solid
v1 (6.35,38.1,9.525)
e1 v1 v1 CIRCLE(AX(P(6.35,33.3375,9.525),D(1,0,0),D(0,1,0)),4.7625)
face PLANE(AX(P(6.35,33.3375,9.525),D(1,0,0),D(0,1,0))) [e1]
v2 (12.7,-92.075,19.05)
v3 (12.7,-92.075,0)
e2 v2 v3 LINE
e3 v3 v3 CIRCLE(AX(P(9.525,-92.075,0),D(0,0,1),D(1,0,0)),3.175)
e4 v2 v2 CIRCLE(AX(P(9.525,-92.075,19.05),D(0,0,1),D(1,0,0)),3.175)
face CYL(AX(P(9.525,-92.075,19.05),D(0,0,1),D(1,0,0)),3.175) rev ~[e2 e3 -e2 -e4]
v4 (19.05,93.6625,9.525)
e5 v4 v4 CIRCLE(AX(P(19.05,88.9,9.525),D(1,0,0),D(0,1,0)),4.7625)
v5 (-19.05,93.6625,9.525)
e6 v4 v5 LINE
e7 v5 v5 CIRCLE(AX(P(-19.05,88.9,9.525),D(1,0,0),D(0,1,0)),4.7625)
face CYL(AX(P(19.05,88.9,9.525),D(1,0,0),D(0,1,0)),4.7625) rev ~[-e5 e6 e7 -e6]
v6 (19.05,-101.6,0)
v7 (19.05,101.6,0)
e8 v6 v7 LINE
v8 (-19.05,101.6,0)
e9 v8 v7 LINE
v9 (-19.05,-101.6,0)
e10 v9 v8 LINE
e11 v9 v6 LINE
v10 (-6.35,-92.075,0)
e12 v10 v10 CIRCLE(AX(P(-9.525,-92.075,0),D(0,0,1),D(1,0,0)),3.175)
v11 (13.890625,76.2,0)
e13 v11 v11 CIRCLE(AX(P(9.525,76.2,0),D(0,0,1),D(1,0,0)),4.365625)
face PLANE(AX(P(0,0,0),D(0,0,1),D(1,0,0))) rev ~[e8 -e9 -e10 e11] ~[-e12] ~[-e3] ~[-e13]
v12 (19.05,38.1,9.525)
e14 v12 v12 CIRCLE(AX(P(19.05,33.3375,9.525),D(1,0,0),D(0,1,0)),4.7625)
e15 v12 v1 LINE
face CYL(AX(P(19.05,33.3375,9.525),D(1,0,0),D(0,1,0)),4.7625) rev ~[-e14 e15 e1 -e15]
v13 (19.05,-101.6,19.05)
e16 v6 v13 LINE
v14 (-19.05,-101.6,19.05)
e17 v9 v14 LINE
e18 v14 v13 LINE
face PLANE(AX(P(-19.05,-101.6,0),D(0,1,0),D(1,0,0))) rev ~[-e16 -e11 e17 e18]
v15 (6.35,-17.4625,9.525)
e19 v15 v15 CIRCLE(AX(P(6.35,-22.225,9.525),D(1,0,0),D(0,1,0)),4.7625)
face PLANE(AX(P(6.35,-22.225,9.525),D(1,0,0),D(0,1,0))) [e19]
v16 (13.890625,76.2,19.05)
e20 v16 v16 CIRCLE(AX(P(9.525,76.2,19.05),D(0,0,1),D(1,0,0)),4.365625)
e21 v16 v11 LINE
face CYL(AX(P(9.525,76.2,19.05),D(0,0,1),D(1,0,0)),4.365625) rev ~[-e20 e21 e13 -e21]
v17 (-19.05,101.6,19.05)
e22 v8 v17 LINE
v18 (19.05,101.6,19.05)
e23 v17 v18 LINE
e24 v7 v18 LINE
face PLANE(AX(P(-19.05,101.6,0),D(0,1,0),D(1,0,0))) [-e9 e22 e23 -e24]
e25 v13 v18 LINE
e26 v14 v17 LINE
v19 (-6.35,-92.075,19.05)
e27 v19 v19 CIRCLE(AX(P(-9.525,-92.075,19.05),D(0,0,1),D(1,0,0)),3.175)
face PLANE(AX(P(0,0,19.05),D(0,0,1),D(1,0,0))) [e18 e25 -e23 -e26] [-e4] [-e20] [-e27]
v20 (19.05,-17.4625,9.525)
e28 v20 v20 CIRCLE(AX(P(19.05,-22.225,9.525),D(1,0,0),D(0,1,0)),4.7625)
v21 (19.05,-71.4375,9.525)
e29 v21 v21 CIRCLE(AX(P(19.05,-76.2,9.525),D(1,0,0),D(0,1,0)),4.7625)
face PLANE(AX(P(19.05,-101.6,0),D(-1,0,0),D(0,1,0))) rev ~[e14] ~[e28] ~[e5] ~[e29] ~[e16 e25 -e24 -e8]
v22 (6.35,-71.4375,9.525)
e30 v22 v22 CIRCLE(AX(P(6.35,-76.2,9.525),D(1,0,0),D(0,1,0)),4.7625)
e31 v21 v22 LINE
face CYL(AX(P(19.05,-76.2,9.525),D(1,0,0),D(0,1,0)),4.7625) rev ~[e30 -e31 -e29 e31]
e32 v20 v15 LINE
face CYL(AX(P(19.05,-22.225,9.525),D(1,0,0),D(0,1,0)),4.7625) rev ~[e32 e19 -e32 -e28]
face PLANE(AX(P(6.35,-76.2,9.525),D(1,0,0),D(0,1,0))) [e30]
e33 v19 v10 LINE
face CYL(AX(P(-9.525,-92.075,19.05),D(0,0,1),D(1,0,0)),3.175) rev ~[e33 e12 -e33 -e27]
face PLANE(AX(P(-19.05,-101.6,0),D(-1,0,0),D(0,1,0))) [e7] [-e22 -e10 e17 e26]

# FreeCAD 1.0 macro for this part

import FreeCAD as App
import Part
import Sketcher
from FreeCAD import Vector
Q = App.Units.Quantity


def add_polygon(sketch, points):
    """Adds a closed chain of lines whose ends are joined by coincident constraints."""
    first, n = sketch.GeometryCount, len(points)
    for a, b in zip(points, points[1:] + points[:1]):
        sketch.addGeometry(Part.LineSegment(App.Vector(*a, 0), App.Vector(*b, 0)), False)
    for i in range(n):
        sketch.addConstraint(Sketcher.Constraint("Coincident", first + i, 2, first + (i + 1) % n, 1))

doc = App.newDocument("Part")
body = doc.addObject("PartDesign::Body", "Body")

sketch1 = doc.addObject("Sketcher::SketchObject", "Sketch")
body.addObject(sketch1)
sketch1.AttachmentSupport = (doc.XY_Plane, [""])
sketch1.MapMode = "FlatFace"
add_polygon(sketch1, [(-19, 102), (-19, -102), (19, -102), (19, 102)])
sketch1.addConstraint([
    Sketcher.Constraint("Vertical", 0),
    Sketcher.Constraint("Horizontal", 1),
    Sketcher.Constraint("Vertical", 2),
    Sketcher.Constraint("Horizontal", 3),
    Sketcher.Constraint("Symmetric", 0, 2, 2, 2, -1, 1),
    Sketcher.Constraint("DistanceY", 0, 2, 0, 1, Q("8 in")),
    Sketcher.Constraint("DistanceX", 1, 1, 1, 2, Q("1.5 in")),
])
pad1 = doc.addObject("PartDesign::Pad", "Pad")
body.addObject(pad1)
pad1.Profile = sketch1
pad1.Length = Q("0.75 in")

sketch2 = doc.addObject("Sketcher::SketchObject", "Sketch001")
body.addObject(sketch2)
sketch2.AttachmentSupport = (doc.YZ_Plane, [""])
sketch2.MapMode = "FlatFace"
sketch2.AttachmentOffset = App.Placement(Vector(0, 0, 0.75 * 25.4), App.Rotation())
sketch2.addGeometry(Part.Circle(Vector(88.9, 9.5, 0), Vector(0, 0, 1), 4.8), False)
sketch2.addConstraint([
    Sketcher.Constraint("Diameter", 0, Q("0.375 in")),
    Sketcher.Constraint("DistanceX", -1, 1, 0, 3, Q("3.5 in")),
    Sketcher.Constraint("DistanceY", -1, 1, 0, 3, Q("0.375 in")),
])
pocket1 = doc.addObject("PartDesign::Pocket", "Pocket")
body.addObject(pocket1)
pocket1.Profile = sketch2
pocket1.Type = "ThroughAll"

sketch3 = doc.addObject("Sketcher::SketchObject", "Sketch002")
body.addObject(sketch3)
sketch3.AttachmentSupport = (doc.XY_Plane, [""])
sketch3.MapMode = "FlatFace"
sketch3.AttachmentOffset = App.Placement(Vector(0, 0, 0.75 * 25.4), App.Rotation())
sketch3.addGeometry([
    Part.Circle(Vector(-9.5, -92.1, 0), Vector(0, 0, 1), 3.2),
    Part.Circle(Vector(9.5, -92.1, 0), Vector(0, 0, 1), 3.2),
], False)
sketch3.addConstraint([
    Sketcher.Constraint("Equal", 0, 1),
    Sketcher.Constraint("Symmetric", 0, 3, 1, 3, -2),
    Sketcher.Constraint("Diameter", 0, Q("0.25 in")),
    Sketcher.Constraint("DistanceX", 0, 3, 1, 3, Q("0.75 in")),
    Sketcher.Constraint("DistanceY", 0, 3, -1, 1, Q("3.625 in")),
])
pocket2 = doc.addObject("PartDesign::Pocket", "Pocket001")
body.addObject(pocket2)
pocket2.Profile = sketch3
pocket2.Type = "ThroughAll"

sketch4 = doc.addObject("Sketcher::SketchObject", "Sketch003")
body.addObject(sketch4)
sketch4.AttachmentSupport = (doc.XY_Plane, [""])
sketch4.MapMode = "FlatFace"
sketch4.AttachmentOffset = App.Placement(Vector(0, 0, 0.75 * 25.4), App.Rotation())
sketch4.addGeometry(Part.Circle(Vector(9.5, 76.2, 0), Vector(0, 0, 1), 4.4), False)
sketch4.addConstraint([
    Sketcher.Constraint("Diameter", 0, Q("0.34375 in")),
    Sketcher.Constraint("DistanceY", -1, 1, 0, 3, Q("3 in")),
    Sketcher.Constraint("DistanceX", -1, 1, 0, 3, Q("0.375 in")),
])
pocket3 = doc.addObject("PartDesign::Pocket", "Pocket002")
body.addObject(pocket3)
pocket3.Profile = sketch4
pocket3.Type = "ThroughAll"

sketch5 = doc.addObject("Sketcher::SketchObject", "Sketch004")
body.addObject(sketch5)
sketch5.AttachmentSupport = (doc.YZ_Plane, [""])
sketch5.MapMode = "FlatFace"
sketch5.AttachmentOffset = App.Placement(Vector(0, 0, 0.75 * 25.4), App.Rotation())
sketch5.addGeometry([
    Part.Circle(Vector(33.3, 9.5, 0), Vector(0, 0, 1), 4.8),
    Part.Circle(Vector(-22.2, 9.5, 0), Vector(0, 0, 1), 4.8),
    Part.Circle(Vector(-76.2, 9.5, 0), Vector(0, 0, 1), 4.8),
], False)
sketch5.addConstraint([
    Sketcher.Constraint("Equal", 0, 1),
    Sketcher.Constraint("Equal", 1, 2),
    Sketcher.Constraint("Horizontal", 0, 3, 1, 3),
    Sketcher.Constraint("Horizontal", 1, 3, 2, 3),
    Sketcher.Constraint("Diameter", 0, Q("0.375 in")),
    Sketcher.Constraint("DistanceX", 2, 3, -1, 1, Q("3 in")),
    Sketcher.Constraint("DistanceX", -1, 1, 0, 3, Q("1.3125 in")),
    Sketcher.Constraint("DistanceY", -1, 1, 0, 3, Q("0.375 in")),
    Sketcher.Constraint("DistanceX", 1, 3, -1, 1, Q("0.875 in")),
])
pocket4 = doc.addObject("PartDesign::Pocket", "Pocket003")
body.addObject(pocket4)
pocket4.Profile = sketch5
pocket4.Length = Q("0.5 in")

doc.recompute()
